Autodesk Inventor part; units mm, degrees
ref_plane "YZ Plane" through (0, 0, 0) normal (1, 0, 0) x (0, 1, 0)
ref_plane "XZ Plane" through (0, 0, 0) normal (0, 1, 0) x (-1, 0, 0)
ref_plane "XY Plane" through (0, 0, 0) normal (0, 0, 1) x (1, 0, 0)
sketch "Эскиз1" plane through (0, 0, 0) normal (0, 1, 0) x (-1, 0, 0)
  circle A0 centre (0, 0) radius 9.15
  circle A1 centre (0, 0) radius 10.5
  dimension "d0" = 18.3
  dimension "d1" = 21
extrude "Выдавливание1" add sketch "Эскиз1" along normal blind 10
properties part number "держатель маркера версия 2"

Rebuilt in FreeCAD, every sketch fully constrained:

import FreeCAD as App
import Part
import Sketcher
from FreeCAD import Vector
Q = App.Units.Quantity

doc = App.newDocument("Part")
body = doc.addObject("PartDesign::Body", "Body")

# Sketch on XZ plane
sketch1 = body.newObject("Sketcher::SketchObject", "Sketch")
sketch1.AttachmentSupport = (doc.getObject("XZ_Plane"), [""])
sketch1.MapMode = "FlatFace"
sketch1.addGeometry([
    Part.Circle(Vector(0, 0, 0), Vector(0, 0, 1), 10),
    Part.Circle(Vector(0, 0, 0), Vector(0, 0, 1), 9),
], False)
sketch1.addConstraint([
    Sketcher.Constraint("Coincident", 0, 3, -1, 1),
    Sketcher.Constraint("Coincident", 1, 3, -1, 1),
    Sketcher.Constraint("Diameter", 0, Q("21 mm")),
    Sketcher.Constraint("Diameter", 1, Q("18.3 mm")),
])
pad1 = body.newObject("PartDesign::Pad", "Pad")
pad1.Profile = sketch1
pad1.Length = 10
pad1.Reversed = True

doc.recompute()
